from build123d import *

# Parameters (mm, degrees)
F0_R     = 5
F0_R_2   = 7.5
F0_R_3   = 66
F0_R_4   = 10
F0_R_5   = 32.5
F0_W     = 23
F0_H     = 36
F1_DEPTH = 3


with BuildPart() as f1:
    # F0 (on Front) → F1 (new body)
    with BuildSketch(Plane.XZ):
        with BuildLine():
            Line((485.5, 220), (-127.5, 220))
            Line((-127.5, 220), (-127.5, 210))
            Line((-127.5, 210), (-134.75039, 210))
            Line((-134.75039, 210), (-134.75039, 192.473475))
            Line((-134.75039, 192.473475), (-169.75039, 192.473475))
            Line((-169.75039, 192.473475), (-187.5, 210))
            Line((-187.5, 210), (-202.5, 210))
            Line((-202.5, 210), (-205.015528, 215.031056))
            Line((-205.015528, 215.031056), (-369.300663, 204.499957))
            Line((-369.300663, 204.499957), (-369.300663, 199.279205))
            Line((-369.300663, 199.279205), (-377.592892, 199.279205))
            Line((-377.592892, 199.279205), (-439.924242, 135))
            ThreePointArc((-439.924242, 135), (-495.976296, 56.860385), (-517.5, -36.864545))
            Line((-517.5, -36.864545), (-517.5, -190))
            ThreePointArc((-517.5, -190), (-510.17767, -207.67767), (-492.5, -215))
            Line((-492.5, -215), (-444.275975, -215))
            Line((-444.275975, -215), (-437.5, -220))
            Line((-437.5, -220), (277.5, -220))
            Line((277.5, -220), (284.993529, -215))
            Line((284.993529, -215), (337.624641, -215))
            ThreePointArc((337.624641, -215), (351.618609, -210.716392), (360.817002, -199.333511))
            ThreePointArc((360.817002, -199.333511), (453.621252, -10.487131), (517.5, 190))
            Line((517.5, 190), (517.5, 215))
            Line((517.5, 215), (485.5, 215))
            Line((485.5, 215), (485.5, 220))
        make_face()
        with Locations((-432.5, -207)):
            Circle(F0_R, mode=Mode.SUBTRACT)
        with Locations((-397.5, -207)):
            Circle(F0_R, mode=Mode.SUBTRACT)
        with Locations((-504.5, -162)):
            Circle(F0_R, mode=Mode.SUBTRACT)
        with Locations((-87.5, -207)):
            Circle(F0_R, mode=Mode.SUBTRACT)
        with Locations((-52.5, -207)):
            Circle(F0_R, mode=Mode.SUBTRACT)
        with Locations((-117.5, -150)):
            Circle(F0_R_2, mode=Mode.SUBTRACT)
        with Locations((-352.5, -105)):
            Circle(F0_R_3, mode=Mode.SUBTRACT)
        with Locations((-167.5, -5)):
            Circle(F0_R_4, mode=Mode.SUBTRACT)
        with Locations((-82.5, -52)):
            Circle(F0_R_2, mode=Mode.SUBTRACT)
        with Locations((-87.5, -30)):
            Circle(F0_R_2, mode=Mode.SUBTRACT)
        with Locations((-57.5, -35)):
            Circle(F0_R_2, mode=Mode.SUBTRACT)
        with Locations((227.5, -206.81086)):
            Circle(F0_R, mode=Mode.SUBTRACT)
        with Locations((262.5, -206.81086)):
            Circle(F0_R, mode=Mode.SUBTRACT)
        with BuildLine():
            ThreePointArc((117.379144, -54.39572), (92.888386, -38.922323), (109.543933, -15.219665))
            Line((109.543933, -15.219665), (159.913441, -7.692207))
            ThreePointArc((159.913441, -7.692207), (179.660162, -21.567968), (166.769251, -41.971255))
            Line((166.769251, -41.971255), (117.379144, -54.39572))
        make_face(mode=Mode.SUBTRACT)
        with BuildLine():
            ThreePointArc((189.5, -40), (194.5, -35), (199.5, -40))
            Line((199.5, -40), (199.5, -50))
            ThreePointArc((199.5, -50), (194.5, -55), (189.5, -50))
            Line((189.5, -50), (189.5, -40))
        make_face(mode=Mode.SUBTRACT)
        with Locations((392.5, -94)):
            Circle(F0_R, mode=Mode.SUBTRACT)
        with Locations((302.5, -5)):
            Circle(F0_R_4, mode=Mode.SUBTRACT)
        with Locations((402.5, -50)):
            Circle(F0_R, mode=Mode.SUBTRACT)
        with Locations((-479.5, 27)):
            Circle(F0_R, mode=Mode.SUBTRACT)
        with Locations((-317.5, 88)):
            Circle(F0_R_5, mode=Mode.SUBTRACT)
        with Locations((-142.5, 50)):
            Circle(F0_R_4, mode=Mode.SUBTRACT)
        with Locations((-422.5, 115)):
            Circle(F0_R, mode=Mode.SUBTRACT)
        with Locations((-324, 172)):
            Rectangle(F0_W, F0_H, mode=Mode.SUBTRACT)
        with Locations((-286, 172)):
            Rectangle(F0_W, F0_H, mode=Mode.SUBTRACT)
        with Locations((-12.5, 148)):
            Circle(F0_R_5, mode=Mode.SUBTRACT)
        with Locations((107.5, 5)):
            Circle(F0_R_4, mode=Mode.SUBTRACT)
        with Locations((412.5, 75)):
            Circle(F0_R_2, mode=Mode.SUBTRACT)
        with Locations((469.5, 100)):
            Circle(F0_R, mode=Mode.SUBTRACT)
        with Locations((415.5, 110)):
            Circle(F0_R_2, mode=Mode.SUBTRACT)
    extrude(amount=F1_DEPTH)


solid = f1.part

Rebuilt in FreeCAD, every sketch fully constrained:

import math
import FreeCAD as App
import Part
import Sketcher
from FreeCAD import Vector


def add_polygon(sketch, points):
    """Adds a closed chain of lines whose ends are joined by coincident constraints."""
    first, n = sketch.GeometryCount, len(points)
    for a, b in zip(points, points[1:] + points[:1]):
        sketch.addGeometry(Part.LineSegment(App.Vector(*a, 0), App.Vector(*b, 0)), False)
    for i in range(n):
        sketch.addConstraint(Sketcher.Constraint("Coincident", first + i, 2, first + (i + 1) % n, 1))

doc = App.newDocument("Part")
params = doc.addObject("Spreadsheet::Sheet", "Params")
for row, (alias, value) in enumerate([
    ("sketch1_diameter", "10 mm"),
    ("sketch1_diameter2", "15 mm"),
    ("sketch1_diameter3", "132 mm"),
    ("sketch1_diameter4", "65 mm"),
    ("sketch1_diameter5", "20 mm"),
    ("pad1_length", "3 mm"),
], start=1):
    params.set(f"A{row}", alias)
    params.set(f"B{row}", "=" + value)
    params.setAlias(f"B{row}", alias)

body = doc.addObject("PartDesign::Body", "Body")

# Sketch on XZ plane
sketch1 = body.newObject("Sketcher::SketchObject", "Sketch")
sketch1.AttachmentSupport = (doc.getObject("XZ_Plane"), [""])
sketch1.MapMode = "FlatFace"
sketch1.addGeometry(Part.LineSegment(Vector(486, 220, 0), Vector(-128, 220, 0)), False)  # 0
sketch1.addGeometry(Part.LineSegment(Vector(-128, 220, 0), Vector(-128, 210, 0)), False)  # 1
sketch1.addGeometry(Part.LineSegment(Vector(-128, 210, 0), Vector(-135, 210, 0)), False)  # 2
sketch1.addGeometry(Part.LineSegment(Vector(-135, 210, 0), Vector(-135, 192, 0)), False)  # 3
sketch1.addGeometry(Part.LineSegment(Vector(-135, 192, 0), Vector(-170, 192, 0)), False)  # 4
sketch1.addGeometry(Part.LineSegment(Vector(-170, 192, 0), Vector(-188, 210, 0)), False)  # 5
sketch1.addGeometry(Part.LineSegment(Vector(-188, 210, 0), Vector(-202, 210, 0)), False)  # 6
sketch1.addGeometry(Part.LineSegment(Vector(-202, 210, 0), Vector(-205, 215, 0)), False)  # 7
sketch1.addGeometry(Part.LineSegment(Vector(-205, 215, 0), Vector(-369, 204, 0)), False)  # 8
sketch1.addGeometry(Part.LineSegment(Vector(-369, 204, 0), Vector(-369, 199, 0)), False)  # 9
sketch1.addGeometry(Part.LineSegment(Vector(-369, 199, 0), Vector(-378, 199, 0)), False)  # 10
sketch1.addGeometry(Part.LineSegment(Vector(-378, 199, 0), Vector(-440, 135, 0)), False)  # 11
sketch1.addGeometry(Part.ArcOfCircle(Part.Circle(Vector(-273, -44, 0), Vector(0, 0, 1), 244), math.radians(133), math.radians(178)), False)  # 12
sketch1.addGeometry(Part.LineSegment(Vector(-518, -37, 0), Vector(-518, -190, 0)), False)  # 13
sketch1.addGeometry(Part.ArcOfCircle(Part.Circle(Vector(-493, -190, 0), Vector(0, 0, 1), 25), math.radians(180), math.radians(270)), False)  # 14
sketch1.addGeometry(Part.LineSegment(Vector(-492, -215, 0), Vector(-444, -215, 0)), False)  # 15
sketch1.addGeometry(Part.LineSegment(Vector(-444, -215, 0), Vector(-438, -220, 0)), False)  # 16
sketch1.addGeometry(Part.LineSegment(Vector(-438, -220, 0), Vector(278, -220, 0)), False)  # 17
sketch1.addGeometry(Part.LineSegment(Vector(278, -220, 0), Vector(285, -215, 0)), False)  # 18
sketch1.addGeometry(Part.LineSegment(Vector(285, -215, 0), Vector(338, -215, 0)), False)  # 19
sketch1.addGeometry(Part.ArcOfCircle(Part.Circle(Vector(338, -190, 0), Vector(0, 0, 1), 25), math.radians(-90), math.radians(-22)), False)  # 20
sketch1.addGeometry(Part.ArcOfCircle(Part.Circle(Vector(-864, 520, 0), Vector(0, 0, 1), 1420), math.radians(-30.42), math.radians(-13.42)), False)  # 21
sketch1.addGeometry(Part.LineSegment(Vector(518, 190, 0), Vector(518, 215, 0)), False)  # 22
sketch1.addGeometry(Part.LineSegment(Vector(518, 215, 0), Vector(486, 215, 0)), False)  # 23
sketch1.addGeometry(Part.LineSegment(Vector(486, 215, 0), Vector(486, 220, 0)), False)  # 24
sketch1.addGeometry(Part.Circle(Vector(-432, -207, 0), Vector(0, 0, 1), 5), False)  # 25
sketch1.addGeometry(Part.Circle(Vector(-398, -207, 0), Vector(0, 0, 1), 5), False)  # 26
sketch1.addGeometry(Part.Circle(Vector(-504, -162, 0), Vector(0, 0, 1), 5), False)  # 27
sketch1.addGeometry(Part.Circle(Vector(-88, -207, 0), Vector(0, 0, 1), 5), False)  # 28
sketch1.addGeometry(Part.Circle(Vector(-52, -207, 0), Vector(0, 0, 1), 5), False)  # 29
sketch1.addGeometry(Part.Circle(Vector(-118, -150, 0), Vector(0, 0, 1), 8), False)  # 30
sketch1.addGeometry(Part.Circle(Vector(-352, -105, 0), Vector(0, 0, 1), 66), False)  # 31
sketch1.addGeometry(Part.Circle(Vector(-82, -52, 0), Vector(0, 0, 1), 8), False)  # 32
sketch1.addGeometry(Part.Circle(Vector(-88, -30, 0), Vector(0, 0, 1), 8), False)  # 33
sketch1.addGeometry(Part.Circle(Vector(-58, -35, 0), Vector(0, 0, 1), 8), False)  # 34
sketch1.addGeometry(Part.Circle(Vector(228, -207, 0), Vector(0, 0, 1), 5), False)  # 35
sketch1.addGeometry(Part.Circle(Vector(262, -207, 0), Vector(0, 0, 1), 5), False)  # 36
sketch1.addGeometry(Part.LineSegment(Vector(190, -50, 0), Vector(190, -40, 0)), False)  # 37
sketch1.addGeometry(Part.ArcOfCircle(Part.Circle(Vector(194, -40, 0), Vector(0, 0, 1), 5), math.radians(0), math.radians(180)), False)  # 38
sketch1.addGeometry(Part.LineSegment(Vector(200, -40, 0), Vector(200, -50, 0)), False)  # 39
sketch1.addGeometry(Part.ArcOfCircle(Part.Circle(Vector(194, -50, 0), Vector(0, 0, 1), 5), math.radians(180), math.radians(360)), False)  # 40
sketch1.addGeometry(Part.LineSegment(Vector(167, -42, 0), Vector(117, -54, 0)), False)  # 41
sketch1.addGeometry(Part.ArcOfCircle(Part.Circle(Vector(112, -35, 0), Vector(0, 0, 1), 20), math.radians(98), math.radians(284)), False)  # 42
sketch1.addGeometry(Part.LineSegment(Vector(110, -15, 0), Vector(160, -8, 0)), False)  # 43
sketch1.addGeometry(Part.ArcOfCircle(Part.Circle(Vector(163, -25, 0), Vector(0, 0, 1), 17), math.radians(-76), math.radians(98)), False)  # 44
sketch1.addGeometry(Part.Circle(Vector(392, -94, 0), Vector(0, 0, 1), 5), False)  # 45
sketch1.addGeometry(Part.Circle(Vector(402, -50, 0), Vector(0, 0, 1), 5), False)  # 46
sketch1.addGeometry(Part.Circle(Vector(-480, 27, 0), Vector(0, 0, 1), 5), False)  # 47
sketch1.addGeometry(Part.Circle(Vector(-318, 88, 0), Vector(0, 0, 1), 32), False)  # 48
sketch1.addGeometry(Part.Circle(Vector(-168, -5, 0), Vector(0, 0, 1), 10), False)  # 49
sketch1.addGeometry(Part.Circle(Vector(-142, 50, 0), Vector(0, 0, 1), 10), False)  # 50
sketch1.addGeometry(Part.Circle(Vector(-422, 115, 0), Vector(0, 0, 1), 5), False)  # 51
add_polygon(sketch1, [(-312, 154), (-336, 154), (-336, 190), (-312, 190)])  # lines 52-55
add_polygon(sketch1, [(-274, 154), (-298, 154), (-298, 190), (-274, 190)])  # lines 56-59
sketch1.addGeometry(Part.Circle(Vector(108, 5, 0), Vector(0, 0, 1), 10), False)  # 60
sketch1.addGeometry(Part.Circle(Vector(302, -5, 0), Vector(0, 0, 1), 10), False)  # 61
sketch1.addGeometry(Part.Circle(Vector(412, 75, 0), Vector(0, 0, 1), 8), False)  # 62
sketch1.addGeometry(Part.Circle(Vector(-12, 148, 0), Vector(0, 0, 1), 32), False)  # 63
sketch1.addGeometry(Part.Circle(Vector(470, 100, 0), Vector(0, 0, 1), 5), False)  # 64
sketch1.addGeometry(Part.Circle(Vector(416, 110, 0), Vector(0, 0, 1), 8), False)  # 65
sketch1.addConstraint(Sketcher.Constraint("Coincident", 0, 2, 1, 1))
sketch1.addConstraint(Sketcher.Constraint("Coincident", 1, 2, 2, 1))
sketch1.addConstraint(Sketcher.Constraint("Coincident", 2, 2, 3, 1))
sketch1.addConstraint(Sketcher.Constraint("Coincident", 3, 2, 4, 1))
sketch1.addConstraint(Sketcher.Constraint("Coincident", 4, 2, 5, 1))
sketch1.addConstraint(Sketcher.Constraint("Coincident", 5, 2, 6, 1))
sketch1.addConstraint(Sketcher.Constraint("Coincident", 6, 2, 7, 1))
sketch1.addConstraint(Sketcher.Constraint("Coincident", 7, 2, 8, 1))
sketch1.addConstraint(Sketcher.Constraint("Coincident", 8, 2, 9, 1))
sketch1.addConstraint(Sketcher.Constraint("Coincident", 9, 2, 10, 1))
sketch1.addConstraint(Sketcher.Constraint("Coincident", 10, 2, 11, 1))
sketch1.addConstraint(Sketcher.Constraint("Coincident", 11, 2, 12, 1))
sketch1.addConstraint(Sketcher.Constraint("Coincident", 12, 2, 13, 1))
sketch1.addConstraint(Sketcher.Constraint("Tangent", 13, 2, 14, 1))
sketch1.addConstraint(Sketcher.Constraint("Tangent", 14, 2, 15, 1))
sketch1.addConstraint(Sketcher.Constraint("Coincident", 15, 2, 16, 1))
sketch1.addConstraint(Sketcher.Constraint("Coincident", 16, 2, 17, 1))
sketch1.addConstraint(Sketcher.Constraint("Coincident", 17, 2, 18, 1))
sketch1.addConstraint(Sketcher.Constraint("Coincident", 18, 2, 19, 1))
sketch1.addConstraint(Sketcher.Constraint("Tangent", 19, 2, 20, 1))
sketch1.addConstraint(Sketcher.Constraint("Coincident", 20, 2, 21, 1))
sketch1.addConstraint(Sketcher.Constraint("Coincident", 21, 2, 22, 1))
sketch1.addConstraint(Sketcher.Constraint("Coincident", 22, 2, 23, 1))
sketch1.addConstraint(Sketcher.Constraint("Coincident", 23, 2, 24, 1))
sketch1.addConstraint(Sketcher.Constraint("Coincident", 24, 2, 0, 1))
sketch1.addConstraint(Sketcher.Constraint("Tangent", 37, 2, 38, 2))
sketch1.addConstraint(Sketcher.Constraint("Tangent", 38, 1, 39, 1))
sketch1.addConstraint(Sketcher.Constraint("Tangent", 39, 2, 40, 2))
sketch1.addConstraint(Sketcher.Constraint("Tangent", 40, 1, 37, 1))
sketch1.addConstraint(Sketcher.Constraint("Tangent", 41, 2, 42, 2))
sketch1.addConstraint(Sketcher.Constraint("Tangent", 42, 1, 43, 1))
sketch1.addConstraint(Sketcher.Constraint("Tangent", 43, 2, 44, 2))
sketch1.addConstraint(Sketcher.Constraint("Tangent", 44, 1, 41, 1))
sketch1.addConstraint(Sketcher.Constraint("Horizontal", 0))
sketch1.addConstraint(Sketcher.Constraint("Vertical", 1))
sketch1.addConstraint(Sketcher.Constraint("Horizontal", 2))
sketch1.addConstraint(Sketcher.Constraint("Vertical", 3))
sketch1.addConstraint(Sketcher.Constraint("Horizontal", 4))
sketch1.addConstraint(Sketcher.Constraint("Horizontal", 6))
sketch1.addConstraint(Sketcher.Constraint("Vertical", 9))
sketch1.addConstraint(Sketcher.Constraint("Horizontal", 10))
sketch1.addConstraint(Sketcher.Constraint("Vertical", 13))
sketch1.addConstraint(Sketcher.Constraint("Horizontal", 15))
sketch1.addConstraint(Sketcher.Constraint("Horizontal", 17))
sketch1.addConstraint(Sketcher.Constraint("Horizontal", 19))
sketch1.addConstraint(Sketcher.Constraint("Vertical", 22))
sketch1.addConstraint(Sketcher.Constraint("Horizontal", 23))
sketch1.addConstraint(Sketcher.Constraint("Vertical", 24))
sketch1.addConstraint(Sketcher.Constraint("Vertical", 37))
sketch1.addConstraint(Sketcher.Constraint("Vertical", 39))
sketch1.addConstraint(Sketcher.Constraint("Horizontal", 52))
sketch1.addConstraint(Sketcher.Constraint("Vertical", 53))
sketch1.addConstraint(Sketcher.Constraint("Horizontal", 54))
sketch1.addConstraint(Sketcher.Constraint("Vertical", 55))
sketch1.addConstraint(Sketcher.Constraint("Horizontal", 56))
sketch1.addConstraint(Sketcher.Constraint("Vertical", 57))
sketch1.addConstraint(Sketcher.Constraint("Horizontal", 58))
sketch1.addConstraint(Sketcher.Constraint("Vertical", 59))
sketch1.addConstraint(Sketcher.Constraint("Equal", 14, 20))
sketch1.addConstraint(Sketcher.Constraint("Equal", 25, 26))
sketch1.addConstraint(Sketcher.Constraint("Equal", 26, 27))
sketch1.addConstraint(Sketcher.Constraint("Equal", 27, 28))
sketch1.addConstraint(Sketcher.Constraint("Equal", 28, 29))
sketch1.addConstraint(Sketcher.Constraint("Equal", 30, 32))
sketch1.addConstraint(Sketcher.Constraint("Equal", 32, 33))
sketch1.addConstraint(Sketcher.Constraint("Equal", 33, 34))
sketch1.addConstraint(Sketcher.Constraint("Equal", 29, 35))
sketch1.addConstraint(Sketcher.Constraint("Equal", 35, 36))
sketch1.addConstraint(Sketcher.Constraint("Equal", 36, 38))
sketch1.addConstraint(Sketcher.Constraint("Equal", 40, 45))
sketch1.addConstraint(Sketcher.Constraint("Equal", 45, 46))
sketch1.addConstraint(Sketcher.Constraint("Equal", 46, 47))
sketch1.addConstraint(Sketcher.Constraint("Equal", 49, 50))
sketch1.addConstraint(Sketcher.Constraint("Equal", 47, 51))
sketch1.addConstraint(Sketcher.Constraint("Equal", 50, 60))
sketch1.addConstraint(Sketcher.Constraint("Equal", 60, 61))
sketch1.addConstraint(Sketcher.Constraint("Equal", 34, 62))
sketch1.addConstraint(Sketcher.Constraint("Equal", 48, 63))
sketch1.addConstraint(Sketcher.Constraint("Equal", 51, 64))
sketch1.addConstraint(Sketcher.Constraint("Equal", 62, 65))
sketch1.addConstraint(Sketcher.Constraint("Horizontal", 14, 3, 20, 3))
sketch1.addConstraint(Sketcher.Constraint("Horizontal", 25, 3, 26, 3))
sketch1.addConstraint(Sketcher.Constraint("Horizontal", 26, 3, 28, 3))
sketch1.addConstraint(Sketcher.Constraint("Horizontal", 28, 3, 29, 3))
sketch1.addConstraint(Sketcher.Constraint("Horizontal", 35, 3, 36, 3))
sketch1.addConstraint(Sketcher.Constraint("Horizontal", 34, 3, 42, 3))
sketch1.addConstraint(Sketcher.Constraint("Horizontal", 40, 3, 46, 3))
sketch1.addConstraint(Sketcher.Constraint("Horizontal", 49, 3, 61, 3))
sketch1.addConstraint(Sketcher.Constraint("Horizontal", 2, 2, 5, 2))
sketch1.addConstraint(Sketcher.Constraint("Horizontal", 55, 2, 56, 2))
sketch1.addConstraint(Sketcher.Constraint("Horizontal", 54, 2, 57, 2))
sketch1.addConstraint(Sketcher.Constraint("Vertical", 28, 3, 33, 3))
sketch1.addConstraint(Sketcher.Constraint("Equal", 54, 56))
sketch1.addConstraint(Sketcher.Constraint("Equal", 1, 37))
sketch1.addConstraint(Sketcher.Constraint("Diameter", 25, 10.0))
sketch1.addConstraint(Sketcher.Constraint("Diameter", 30, 15.0))
sketch1.addConstraint(Sketcher.Constraint("Diameter", 31, 132.0))
sketch1.addConstraint(Sketcher.Constraint("Diameter", 48, 65.0))
sketch1.addConstraint(Sketcher.Constraint("Diameter", 49, 20.0))
sketch1.addConstraint(Sketcher.Constraint("Radius", 14, 24.999998))
sketch1.addConstraint(Sketcher.Constraint("Radius", 42, 20.0))
sketch1.addConstraint(Sketcher.Constraint("Radius", 44, 17.5))
sketch1.addConstraint(Sketcher.Constraint("DistanceX", 0, 2, 0, 1, 613.0))
sketch1.addConstraint(Sketcher.Constraint("DistanceX", 4, 2, 4, 1, 35.0))
sketch1.addConstraint(Sketcher.Constraint("DistanceX", 6, 2, 6, 1, 15.0))
sketch1.addConstraint(Sketcher.Constraint("DistanceX", 17, 1, 17, 2, 715.0))
sketch1.addConstraint(Sketcher.Constraint("DistanceX", 23, 2, 23, 1, 32.0))
sketch1.addConstraint(Sketcher.Constraint("DistanceX", 52, 2, 52, 1, 23.0))
sketch1.addConstraint(Sketcher.Constraint("DistanceY", 1, 2, 1, 1, 10.0))
sketch1.addConstraint(Sketcher.Constraint("DistanceY", 22, 1, 22, 2, 25.0))
sketch1.addConstraint(Sketcher.Constraint("DistanceY", 24, 1, 24, 2, 5.0))
sketch1.addConstraint(Sketcher.Constraint("DistanceY", 53, 1, 53, 2, 36.0))
sketch1.addConstraint(Sketcher.Constraint("DistanceY", 14, 3, -1, 1, 190.000002))
sketch1.addConstraint(Sketcher.Constraint("DistanceY", 25, 3, -1, 1, 207.0))
sketch1.addConstraint(Sketcher.Constraint("DistanceY", 27, 3, -1, 1, 162.0))
sketch1.addConstraint(Sketcher.Constraint("DistanceY", 30, 3, -1, 1, 150.0))
sketch1.addConstraint(Sketcher.Constraint("DistanceY", 31, 3, -1, 1, 105.0))
sketch1.addConstraint(Sketcher.Constraint("DistanceY", 32, 3, -1, 1, 52.0))
sketch1.addConstraint(Sketcher.Constraint("DistanceY", 33, 3, -1, 1, 30.0))
sketch1.addConstraint(Sketcher.Constraint("DistanceY", 34, 3, -1, 1, 35.0))
sketch1.addConstraint(Sketcher.Constraint("DistanceY", 38, 3, -1, 1, 40.0))
sketch1.addConstraint(Sketcher.Constraint("DistanceY", 44, 3, -1, 1, 25.0))
sketch1.addConstraint(Sketcher.Constraint("DistanceY", 45, 3, -1, 1, 94.0))
sketch1.addConstraint(Sketcher.Constraint("DistanceY", -1, 1, 47, 3, 27.0))
sketch1.addConstraint(Sketcher.Constraint("DistanceY", -1, 1, 48, 3, 88.0))
sketch1.addConstraint(Sketcher.Constraint("DistanceY", 49, 3, -1, 1, 5.0))
sketch1.addConstraint(Sketcher.Constraint("DistanceY", -1, 1, 50, 3, 50.0))
sketch1.addConstraint(Sketcher.Constraint("DistanceY", -1, 1, 51, 3, 115.0))
sketch1.addConstraint(Sketcher.Constraint("DistanceY", -1, 1, 60, 3, 5.0))
sketch1.addConstraint(Sketcher.Constraint("DistanceY", -1, 1, 62, 3, 75.0))
sketch1.addConstraint(Sketcher.Constraint("DistanceY", -1, 1, 63, 3, 148.0))
sketch1.addConstraint(Sketcher.Constraint("DistanceY", -1, 1, 64, 3, 100.0))
sketch1.addConstraint(Sketcher.Constraint("DistanceY", -1, 1, 65, 3, 110.0))
sketch1.addConstraint(Sketcher.Constraint("DistanceY", -1, 1, 0, 2, 220.0))
sketch1.addConstraint(Sketcher.Constraint("DistanceY", -1, 1, 11, 2, 135.0))
sketch1.addConstraint(Sketcher.Constraint("DistanceY", 16, 2, -1, 1, 220.0))
sketch1.addConstraint(Sketcher.Constraint("DistanceY", -1, 1, 52, 2, 154.0))
sketch1.addConstraint(Sketcher.Constraint("DistanceX", 14, 3, -1, 1, 492.500002))
sketch1.addConstraint(Sketcher.Constraint("DistanceX", 25, 3, -1, 1, 432.5))
sketch1.addConstraint(Sketcher.Constraint("DistanceX", 26, 3, -1, 1, 397.5))
sketch1.addConstraint(Sketcher.Constraint("DistanceX", 27, 3, -1, 1, 504.5))
sketch1.addConstraint(Sketcher.Constraint("DistanceX", 28, 3, -1, 1, 87.5))
sketch1.addConstraint(Sketcher.Constraint("DistanceX", 29, 3, -1, 1, 52.5))
sketch1.addConstraint(Sketcher.Constraint("DistanceX", 30, 3, -1, 1, 117.5))
sketch1.addConstraint(Sketcher.Constraint("DistanceX", 31, 3, -1, 1, 352.5))
sketch1.addConstraint(Sketcher.Constraint("DistanceX", 32, 3, -1, 1, 82.5))
sketch1.addConstraint(Sketcher.Constraint("DistanceX", 34, 3, -1, 1, 57.5))
sketch1.addConstraint(Sketcher.Constraint("DistanceX", -1, 1, 35, 3, 227.5))
sketch1.addConstraint(Sketcher.Constraint("DistanceX", -1, 1, 36, 3, 262.5))
sketch1.addConstraint(Sketcher.Constraint("DistanceX", -1, 1, 38, 3, 194.5))
sketch1.addConstraint(Sketcher.Constraint("DistanceX", -1, 1, 42, 3, 112.499999))
sketch1.addConstraint(Sketcher.Constraint("DistanceX", -1, 1, 44, 3, 162.5))
sketch1.addConstraint(Sketcher.Constraint("DistanceX", -1, 1, 45, 3, 392.5))
sketch1.addConstraint(Sketcher.Constraint("DistanceX", -1, 1, 46, 3, 402.5))
sketch1.addConstraint(Sketcher.Constraint("DistanceX", 47, 3, -1, 1, 479.5))
sketch1.addConstraint(Sketcher.Constraint("DistanceX", 48, 3, -1, 1, 317.5))
sketch1.addConstraint(Sketcher.Constraint("DistanceX", 49, 3, -1, 1, 167.5))
sketch1.addConstraint(Sketcher.Constraint("DistanceX", 50, 3, -1, 1, 142.5))
sketch1.addConstraint(Sketcher.Constraint("DistanceX", 51, 3, -1, 1, 422.5))
sketch1.addConstraint(Sketcher.Constraint("DistanceX", -1, 1, 60, 3, 107.5))
sketch1.addConstraint(Sketcher.Constraint("DistanceX", -1, 1, 61, 3, 302.5))
sketch1.addConstraint(Sketcher.Constraint("DistanceX", -1, 1, 62, 3, 412.5))
sketch1.addConstraint(Sketcher.Constraint("DistanceX", 63, 3, -1, 1, 12.5))
sketch1.addConstraint(Sketcher.Constraint("DistanceX", -1, 1, 64, 3, 469.5))
sketch1.addConstraint(Sketcher.Constraint("DistanceX", -1, 1, 65, 3, 415.5))
sketch1.addConstraint(Sketcher.Constraint("DistanceX", 0, 2, -1, 1, 127.5))
sketch1.addConstraint(Sketcher.Constraint("DistanceX", 5, 2, -1, 1, 187.5))
sketch1.addConstraint(Sketcher.Constraint("DistanceX", 16, 2, -1, 1, 437.5))
sketch1.addConstraint(Sketcher.Constraint("DistanceX", 52, 2, -1, 1, 335.5))
sketch1.addConstraint(Sketcher.Constraint("DistanceX", 56, 2, -1, 1, 297.5))
sketch1.addConstraint(Sketcher.Constraint("Radius", 12, 244.111426))
sketch1.addConstraint(Sketcher.Constraint("Radius", 21, 1419.999965))
sketch1.addConstraint(Sketcher.Constraint("DistanceX", 2, 2, 2, 1, 7.25039))
sketch1.addConstraint(Sketcher.Constraint("DistanceX", 10, 2, 10, 1, 8.292229))
sketch1.addConstraint(Sketcher.Constraint("DistanceX", 19, 1, 19, 2, 52.631112))
sketch1.addConstraint(Sketcher.Constraint("DistanceY", 12, 3, -1, 1, 43.569099))
sketch1.addConstraint(Sketcher.Constraint("Distance", 7, 5.624892))
sketch1.addConstraint(Sketcher.Constraint("DistanceX", 15, 1, 15, 2, 48.224025))
sketch1.addConstraint(Sketcher.Constraint("DistanceY", 3, 2, 3, 1, 17.526525))
sketch1.addConstraint(Sketcher.Constraint("DistanceY", 9, 2, 9, 1, 5.220752))
sketch1.addConstraint(Sketcher.Constraint("DistanceY", 13, 2, 13, 1, 153.135455))
sketch1.addConstraint(Sketcher.Constraint("DistanceX", 21, 3, -1, 1, 863.70478))
sketch1.addConstraint(Sketcher.Constraint("DistanceY", 35, 3, -1, 1, 206.81086))
sketch1.addConstraint(Sketcher.Constraint("DistanceX", 10, 2, -1, 1, 377.592892))
sketch1.addConstraint(Sketcher.Constraint("DistanceX", -1, 1, 18, 2, 284.993529))
sketch1.addConstraint(Sketcher.Constraint("Distance", 8, 164.622324))
sketch1.addConstraint(Sketcher.Constraint("Distance", 11, 89.537776))
sketch1.setExpression("Constraints[102]", "Params.sketch1_diameter")
sketch1.setExpression("Constraints[103]", "Params.sketch1_diameter2")
sketch1.setExpression("Constraints[104]", "Params.sketch1_diameter3")
sketch1.setExpression("Constraints[105]", "Params.sketch1_diameter4")
sketch1.setExpression("Constraints[106]", "Params.sketch1_diameter5")
pad1 = body.newObject("PartDesign::Pad", "Pad")
pad1.Profile = sketch1
pad1.setExpression("Length", "Params.pad1_length")

doc.recompute()
